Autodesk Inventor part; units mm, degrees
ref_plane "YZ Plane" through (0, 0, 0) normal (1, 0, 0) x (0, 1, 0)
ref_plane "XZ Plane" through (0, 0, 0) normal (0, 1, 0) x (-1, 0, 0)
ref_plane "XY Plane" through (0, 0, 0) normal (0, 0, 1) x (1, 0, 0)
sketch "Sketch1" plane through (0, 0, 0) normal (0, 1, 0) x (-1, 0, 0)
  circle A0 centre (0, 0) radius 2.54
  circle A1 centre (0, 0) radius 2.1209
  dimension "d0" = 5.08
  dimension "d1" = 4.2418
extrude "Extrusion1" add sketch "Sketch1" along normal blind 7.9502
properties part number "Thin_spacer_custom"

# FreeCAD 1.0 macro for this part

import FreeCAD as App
import Part
import Sketcher

V = App.Vector
Q = App.Units.Quantity

doc = App.newDocument("Part")
body = doc.addObject("PartDesign::Body", "Body")

# Sketch on XZ plane
sketch1 = body.newObject("Sketcher::SketchObject", "Sketch")
sketch1.AttachmentSupport = (doc.getObject("XZ_Plane"), [""])
sketch1.MapMode = "FlatFace"
sketch1.addGeometry([
    Part.Circle(V(0, 0, 0), V(0, 0, 1), 2.54),
    Part.Circle(V(0, 0, 0), V(0, 0, 1), 2.1209),
], False)
sketch1.addConstraint([
    Sketcher.Constraint("Coincident", 0, 3, -1, 1),
    Sketcher.Constraint("Coincident", 1, 3, -1, 1),
    Sketcher.Constraint("Diameter", 0, Q("0.2 in")),
    Sketcher.Constraint("Diameter", 1, Q("0.167 in")),
])
pad1 = body.newObject("PartDesign::Pad", "Pad")
pad1.Profile = sketch1
pad1.Length = Q("0.313 in")
pad1.Reversed = True

doc.recompute()
